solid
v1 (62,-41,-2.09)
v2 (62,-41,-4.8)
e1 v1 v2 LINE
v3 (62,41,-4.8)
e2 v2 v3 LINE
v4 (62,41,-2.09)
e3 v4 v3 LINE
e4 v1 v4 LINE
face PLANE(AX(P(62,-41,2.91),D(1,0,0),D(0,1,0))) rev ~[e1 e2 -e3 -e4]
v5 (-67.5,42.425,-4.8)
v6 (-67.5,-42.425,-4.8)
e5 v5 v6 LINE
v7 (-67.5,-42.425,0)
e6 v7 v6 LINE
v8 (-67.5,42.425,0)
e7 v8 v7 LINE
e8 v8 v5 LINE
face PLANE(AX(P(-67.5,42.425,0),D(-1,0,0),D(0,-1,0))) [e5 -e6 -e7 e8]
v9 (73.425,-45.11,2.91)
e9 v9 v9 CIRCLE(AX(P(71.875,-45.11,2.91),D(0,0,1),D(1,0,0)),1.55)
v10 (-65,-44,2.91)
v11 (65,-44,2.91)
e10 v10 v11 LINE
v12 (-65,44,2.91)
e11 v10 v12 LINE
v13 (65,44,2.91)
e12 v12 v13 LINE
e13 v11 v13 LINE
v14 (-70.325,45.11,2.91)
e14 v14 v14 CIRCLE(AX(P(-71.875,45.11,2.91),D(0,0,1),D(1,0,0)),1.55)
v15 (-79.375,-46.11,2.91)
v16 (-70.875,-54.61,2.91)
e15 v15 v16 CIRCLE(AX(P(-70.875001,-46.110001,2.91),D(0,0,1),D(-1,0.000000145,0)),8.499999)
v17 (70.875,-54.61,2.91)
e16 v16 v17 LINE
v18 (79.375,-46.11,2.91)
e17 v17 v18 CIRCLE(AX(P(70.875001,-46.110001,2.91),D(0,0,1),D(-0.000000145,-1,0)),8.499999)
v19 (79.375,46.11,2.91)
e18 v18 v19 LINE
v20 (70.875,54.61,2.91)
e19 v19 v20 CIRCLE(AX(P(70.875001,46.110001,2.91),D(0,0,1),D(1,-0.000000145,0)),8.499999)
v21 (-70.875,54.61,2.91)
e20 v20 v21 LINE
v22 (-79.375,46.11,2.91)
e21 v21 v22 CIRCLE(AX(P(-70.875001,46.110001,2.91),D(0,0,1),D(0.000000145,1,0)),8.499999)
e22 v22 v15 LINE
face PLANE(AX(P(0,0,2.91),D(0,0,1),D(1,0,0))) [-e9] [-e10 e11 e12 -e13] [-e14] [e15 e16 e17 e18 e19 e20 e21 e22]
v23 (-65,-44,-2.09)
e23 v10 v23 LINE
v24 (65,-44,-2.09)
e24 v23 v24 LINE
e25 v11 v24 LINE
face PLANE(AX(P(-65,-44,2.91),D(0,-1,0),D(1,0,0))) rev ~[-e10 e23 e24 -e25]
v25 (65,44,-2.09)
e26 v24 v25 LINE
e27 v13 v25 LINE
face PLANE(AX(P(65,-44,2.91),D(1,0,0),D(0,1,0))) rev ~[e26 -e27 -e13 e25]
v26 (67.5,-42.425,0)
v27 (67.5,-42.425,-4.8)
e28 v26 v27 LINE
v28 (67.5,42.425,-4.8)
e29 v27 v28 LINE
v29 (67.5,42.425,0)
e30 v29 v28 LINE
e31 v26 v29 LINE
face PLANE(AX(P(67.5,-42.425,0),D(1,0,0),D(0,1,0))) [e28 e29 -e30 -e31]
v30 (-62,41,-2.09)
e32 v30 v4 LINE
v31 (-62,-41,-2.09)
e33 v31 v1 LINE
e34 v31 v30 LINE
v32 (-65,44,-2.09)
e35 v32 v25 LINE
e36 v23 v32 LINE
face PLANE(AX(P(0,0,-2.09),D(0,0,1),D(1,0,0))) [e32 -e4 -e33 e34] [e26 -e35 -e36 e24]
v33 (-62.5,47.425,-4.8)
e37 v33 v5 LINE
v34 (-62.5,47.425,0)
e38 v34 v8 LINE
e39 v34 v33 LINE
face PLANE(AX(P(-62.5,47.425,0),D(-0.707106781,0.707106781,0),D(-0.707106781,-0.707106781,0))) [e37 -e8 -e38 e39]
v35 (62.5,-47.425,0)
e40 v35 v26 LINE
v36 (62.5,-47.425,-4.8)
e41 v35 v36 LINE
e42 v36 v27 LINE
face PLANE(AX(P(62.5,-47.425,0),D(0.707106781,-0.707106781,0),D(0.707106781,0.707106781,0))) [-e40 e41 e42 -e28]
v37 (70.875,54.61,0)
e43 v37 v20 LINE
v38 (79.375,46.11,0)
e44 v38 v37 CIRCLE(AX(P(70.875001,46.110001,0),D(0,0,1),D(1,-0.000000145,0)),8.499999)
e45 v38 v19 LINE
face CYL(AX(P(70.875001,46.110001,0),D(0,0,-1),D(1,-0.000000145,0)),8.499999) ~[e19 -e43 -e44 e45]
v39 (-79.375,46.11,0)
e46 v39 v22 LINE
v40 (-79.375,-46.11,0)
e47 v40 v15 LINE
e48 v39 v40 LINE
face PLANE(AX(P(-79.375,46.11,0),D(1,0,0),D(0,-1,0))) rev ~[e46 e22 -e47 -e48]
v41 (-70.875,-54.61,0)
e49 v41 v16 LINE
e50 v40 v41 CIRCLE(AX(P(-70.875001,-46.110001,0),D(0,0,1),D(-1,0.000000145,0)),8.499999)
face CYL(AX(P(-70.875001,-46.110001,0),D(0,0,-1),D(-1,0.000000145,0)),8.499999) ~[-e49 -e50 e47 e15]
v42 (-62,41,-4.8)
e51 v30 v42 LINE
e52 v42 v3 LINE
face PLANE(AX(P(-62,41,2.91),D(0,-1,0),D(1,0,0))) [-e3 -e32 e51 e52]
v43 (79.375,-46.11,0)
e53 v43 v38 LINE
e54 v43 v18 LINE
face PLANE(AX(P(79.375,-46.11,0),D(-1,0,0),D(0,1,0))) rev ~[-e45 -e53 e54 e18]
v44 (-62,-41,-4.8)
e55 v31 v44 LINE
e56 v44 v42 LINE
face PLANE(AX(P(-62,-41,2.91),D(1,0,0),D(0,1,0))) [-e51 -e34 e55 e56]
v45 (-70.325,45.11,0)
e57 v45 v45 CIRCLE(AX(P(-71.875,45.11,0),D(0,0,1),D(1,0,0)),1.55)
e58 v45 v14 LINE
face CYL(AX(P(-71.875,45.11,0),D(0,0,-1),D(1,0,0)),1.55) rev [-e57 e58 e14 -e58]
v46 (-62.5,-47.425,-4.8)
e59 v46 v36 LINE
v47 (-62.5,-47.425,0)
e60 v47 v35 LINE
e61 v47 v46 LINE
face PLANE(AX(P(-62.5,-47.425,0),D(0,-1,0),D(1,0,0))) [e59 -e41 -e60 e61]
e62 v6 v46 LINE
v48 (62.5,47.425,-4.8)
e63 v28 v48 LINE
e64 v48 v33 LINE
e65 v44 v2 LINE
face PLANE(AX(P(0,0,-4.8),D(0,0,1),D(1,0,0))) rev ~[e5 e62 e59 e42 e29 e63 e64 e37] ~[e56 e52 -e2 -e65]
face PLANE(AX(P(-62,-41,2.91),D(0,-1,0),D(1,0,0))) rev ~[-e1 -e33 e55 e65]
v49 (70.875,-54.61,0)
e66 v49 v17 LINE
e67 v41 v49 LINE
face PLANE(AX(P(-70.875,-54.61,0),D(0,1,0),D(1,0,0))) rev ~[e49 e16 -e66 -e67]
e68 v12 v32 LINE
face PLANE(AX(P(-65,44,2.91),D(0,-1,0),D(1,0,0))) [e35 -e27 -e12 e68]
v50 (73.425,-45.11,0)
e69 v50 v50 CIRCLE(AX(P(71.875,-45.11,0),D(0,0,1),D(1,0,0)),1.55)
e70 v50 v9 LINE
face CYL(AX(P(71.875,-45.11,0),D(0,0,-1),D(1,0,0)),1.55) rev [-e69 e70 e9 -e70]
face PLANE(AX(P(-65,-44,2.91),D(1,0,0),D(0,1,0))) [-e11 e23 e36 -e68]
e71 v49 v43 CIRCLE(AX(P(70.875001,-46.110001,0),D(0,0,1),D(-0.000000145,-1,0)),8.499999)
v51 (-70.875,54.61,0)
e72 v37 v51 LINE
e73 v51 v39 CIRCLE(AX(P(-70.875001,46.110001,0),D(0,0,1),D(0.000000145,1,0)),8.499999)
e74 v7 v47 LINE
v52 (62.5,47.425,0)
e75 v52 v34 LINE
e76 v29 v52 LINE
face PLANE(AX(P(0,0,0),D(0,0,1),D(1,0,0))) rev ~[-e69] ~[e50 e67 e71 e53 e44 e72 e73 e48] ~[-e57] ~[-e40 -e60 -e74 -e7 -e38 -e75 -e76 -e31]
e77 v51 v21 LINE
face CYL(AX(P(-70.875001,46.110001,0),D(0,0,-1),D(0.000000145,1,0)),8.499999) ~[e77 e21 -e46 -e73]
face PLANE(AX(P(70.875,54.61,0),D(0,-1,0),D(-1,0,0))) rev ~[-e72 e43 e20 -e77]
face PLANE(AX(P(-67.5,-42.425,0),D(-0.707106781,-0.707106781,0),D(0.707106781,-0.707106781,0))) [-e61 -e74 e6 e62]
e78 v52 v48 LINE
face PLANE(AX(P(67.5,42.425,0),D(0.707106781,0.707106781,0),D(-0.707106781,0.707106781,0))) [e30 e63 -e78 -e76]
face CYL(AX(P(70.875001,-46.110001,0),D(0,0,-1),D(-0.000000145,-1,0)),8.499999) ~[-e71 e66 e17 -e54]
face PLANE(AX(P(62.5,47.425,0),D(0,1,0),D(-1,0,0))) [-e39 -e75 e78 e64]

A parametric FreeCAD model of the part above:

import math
import FreeCAD as App
import Part
import Sketcher

V = App.Vector
Q = App.Units.Quantity


def add_polygon(sketch, points):
    """Adds a closed chain of lines whose ends are joined by coincident constraints."""
    first, n = sketch.GeometryCount, len(points)
    for a, b in zip(points, points[1:] + points[:1]):
        sketch.addGeometry(Part.LineSegment(App.Vector(*a, 0), App.Vector(*b, 0)), False)
    for i in range(n):
        sketch.addConstraint(Sketcher.Constraint("Coincident", first + i, 2, first + (i + 1) % n, 1))

doc = App.newDocument("Part")
body = doc.addObject("PartDesign::Body", "Body")

sketch1 = doc.addObject("Sketcher::SketchObject", "Sketch")
body.addObject(sketch1)
sketch1.AttachmentSupport = (doc.XY_Plane, [""])
sketch1.MapMode = "FlatFace"
sketch1.addGeometry(Part.LineSegment(V(-70.9, -54.6, 0), V(70.9, -54.6, 0)), False)
sketch1.addGeometry(Part.ArcOfCircle(Part.Circle(V(70.9, -46.1, 0), V(0, 0, 1), 8.5), math.radians(-90), math.radians(0)), False)
sketch1.addGeometry(Part.LineSegment(V(79.4, -46.1, 0), V(79.4, 46.1, 0)), False)
sketch1.addGeometry(Part.ArcOfCircle(Part.Circle(V(70.9, 46.1, 0), V(0, 0, 1), 8.5), math.radians(0), math.radians(90)), False)
sketch1.addGeometry(Part.LineSegment(V(70.9, 54.6, 0), V(-70.9, 54.6, 0)), False)
sketch1.addGeometry(Part.ArcOfCircle(Part.Circle(V(-70.9, 46.1, 0), V(0, 0, 1), 8.5), math.radians(90), math.radians(180)), False)
sketch1.addGeometry(Part.LineSegment(V(-79.4, 46.1, 0), V(-79.4, -46.1, 0)), False)
sketch1.addGeometry(Part.ArcOfCircle(Part.Circle(V(-70.9, -46.1, 0), V(0, 0, 1), 8.5), math.radians(180), math.radians(270)), False)
sketch1.addGeometry(Part.Circle(V(71.9, -45.1, 0), V(0, 0, 1), 1.6), False)
sketch1.addGeometry(Part.Circle(V(-71.9, 45.1, 0), V(0, 0, 1), 1.6), False)
sketch1.addConstraint(Sketcher.Constraint("Tangent", 0, 2, 1, 1))
sketch1.addConstraint(Sketcher.Constraint("Tangent", 1, 2, 2, 1))
sketch1.addConstraint(Sketcher.Constraint("Tangent", 2, 2, 3, 1))
sketch1.addConstraint(Sketcher.Constraint("Tangent", 3, 2, 4, 1))
sketch1.addConstraint(Sketcher.Constraint("Tangent", 4, 2, 5, 1))
sketch1.addConstraint(Sketcher.Constraint("Tangent", 5, 2, 6, 1))
sketch1.addConstraint(Sketcher.Constraint("Tangent", 6, 2, 7, 1))
sketch1.addConstraint(Sketcher.Constraint("Tangent", 7, 2, 0, 1))
sketch1.addConstraint(Sketcher.Constraint("Horizontal", 0))
sketch1.addConstraint(Sketcher.Constraint("Vertical", 2))
sketch1.addConstraint(Sketcher.Constraint("Horizontal", 4))
sketch1.addConstraint(Sketcher.Constraint("Vertical", 6))
sketch1.addConstraint(Sketcher.Constraint("Equal", 1, 3))
sketch1.addConstraint(Sketcher.Constraint("Equal", 3, 5))
sketch1.addConstraint(Sketcher.Constraint("Equal", 5, 7))
sketch1.addConstraint(Sketcher.Constraint("Equal", 8, 9))
sketch1.addConstraint(Sketcher.Constraint("Symmetric", 1, 3, 5, 3, -1, 1))
sketch1.addConstraint(Sketcher.Constraint("Symmetric", 8, 3, 9, 3, -1, 1))
sketch1.addConstraint(Sketcher.Constraint("Diameter", 8, Q("3.1 mm")))
sketch1.addConstraint(Sketcher.Constraint("Radius", 1, Q("8.499999 mm")))
sketch1.addConstraint(Sketcher.Constraint("DistanceX", 1, 3, 8, 3, Q("0.999999 mm")))
sketch1.addConstraint(Sketcher.Constraint("DistanceY", 1, 3, 8, 3, Q("1.000001 mm")))
sketch1.addConstraint(Sketcher.Constraint("DistanceX", 0, 1, 0, 2, Q("141.75 mm")))
sketch1.addConstraint(Sketcher.Constraint("DistanceY", 2, 1, 2, 2, Q("92.22 mm")))
pad1 = doc.addObject("PartDesign::Pad", "Pad")
body.addObject(pad1)
pad1.Profile = sketch1
pad1.Length = 2.91

sketch2 = doc.addObject("Sketcher::SketchObject", "Sketch001")
body.addObject(sketch2)
sketch2.AttachmentSupport = (doc.XY_Plane, [""])
sketch2.MapMode = "FlatFace"
add_polygon(sketch2, [(-62, -47), (62, -47), (68, -42), (68, 42), (62, 47), (-62, 47), (-68, 42), (-68, -42)])
sketch2.addConstraint(Sketcher.Constraint("Horizontal", 0))
sketch2.addConstraint(Sketcher.Constraint("Vertical", 2))
sketch2.addConstraint(Sketcher.Constraint("Horizontal", 4))
sketch2.addConstraint(Sketcher.Constraint("Vertical", 6))
sketch2.addConstraint(Sketcher.Constraint("Symmetric", 0, 2, 4, 2, -1, 1))
sketch2.addConstraint(Sketcher.Constraint("Symmetric", 1, 2, 5, 2, -1, 1))
sketch2.addConstraint(Sketcher.Constraint("Perpendicular", 1, 3))
sketch2.addConstraint(Sketcher.Constraint("Perpendicular", 5, 7))
sketch2.addConstraint(Sketcher.Constraint("Horizontal", 2, 2, 5, 2))
sketch2.addConstraint(Sketcher.Constraint("Horizontal", 1, 2, 6, 2))
sketch2.addConstraint(Sketcher.Constraint("Vertical", 0, 2, 3, 2))
sketch2.addConstraint(Sketcher.Constraint("DistanceX", 0, 1, 0, 2, Q("125 mm")))
sketch2.addConstraint(Sketcher.Constraint("DistanceX", 0, 2, 1, 2, Q("5 mm")))
sketch2.addConstraint(Sketcher.Constraint("DistanceY", 2, 1, 2, 2, Q("84.85 mm")))
pad2 = doc.addObject("PartDesign::Pad", "Pad001")
body.addObject(pad2)
pad2.Profile = sketch2
pad2.Length = 4.8
pad2.Reversed = True

sketch3 = doc.addObject("Sketcher::SketchObject", "Sketch002")
body.addObject(sketch3)
sketch3.AttachmentSupport = (doc.XY_Plane, [""])
sketch3.MapMode = "FlatFace"
sketch3.AttachmentOffset = App.Placement(V(0, 0, 2.91), App.Rotation())
add_polygon(sketch3, [(-65, 44), (-65, -44), (65, -44), (65, 44)])
sketch3.addConstraint(Sketcher.Constraint("Vertical", 0))
sketch3.addConstraint(Sketcher.Constraint("Horizontal", 1))
sketch3.addConstraint(Sketcher.Constraint("Vertical", 2))
sketch3.addConstraint(Sketcher.Constraint("Horizontal", 3))
sketch3.addConstraint(Sketcher.Constraint("Symmetric", 0, 2, 2, 2, -1, 1))
sketch3.addConstraint(Sketcher.Constraint("DistanceX", 1, 1, 1, 2, Q("130 mm")))
sketch3.addConstraint(Sketcher.Constraint("DistanceY", 0, 2, 0, 1, Q("88 mm")))
pocket1 = doc.addObject("PartDesign::Pocket", "Pocket")
body.addObject(pocket1)
pocket1.Profile = sketch3
pocket1.Length = 5

sketch4 = doc.addObject("Sketcher::SketchObject", "Sketch003")
body.addObject(sketch4)
sketch4.AttachmentSupport = (doc.XY_Plane, [""])
sketch4.MapMode = "FlatFace"
sketch4.AttachmentOffset = App.Placement(V(0, 0, 2.91), App.Rotation())
add_polygon(sketch4, [(-62, 41), (-62, -41), (62, -41), (62, 41)])
sketch4.addConstraint(Sketcher.Constraint("Vertical", 0))
sketch4.addConstraint(Sketcher.Constraint("Horizontal", 1))
sketch4.addConstraint(Sketcher.Constraint("Vertical", 2))
sketch4.addConstraint(Sketcher.Constraint("Horizontal", 3))
sketch4.addConstraint(Sketcher.Constraint("Symmetric", 0, 2, 2, 2, -1, 1))
sketch4.addConstraint(Sketcher.Constraint("DistanceX", 1, 1, 1, 2, Q("124 mm")))
sketch4.addConstraint(Sketcher.Constraint("DistanceY", 0, 2, 0, 1, Q("82 mm")))
pocket2 = doc.addObject("PartDesign::Pocket", "Pocket001")
body.addObject(pocket2)
pocket2.Profile = sketch4
pocket2.Length = 25

doc.recompute()
